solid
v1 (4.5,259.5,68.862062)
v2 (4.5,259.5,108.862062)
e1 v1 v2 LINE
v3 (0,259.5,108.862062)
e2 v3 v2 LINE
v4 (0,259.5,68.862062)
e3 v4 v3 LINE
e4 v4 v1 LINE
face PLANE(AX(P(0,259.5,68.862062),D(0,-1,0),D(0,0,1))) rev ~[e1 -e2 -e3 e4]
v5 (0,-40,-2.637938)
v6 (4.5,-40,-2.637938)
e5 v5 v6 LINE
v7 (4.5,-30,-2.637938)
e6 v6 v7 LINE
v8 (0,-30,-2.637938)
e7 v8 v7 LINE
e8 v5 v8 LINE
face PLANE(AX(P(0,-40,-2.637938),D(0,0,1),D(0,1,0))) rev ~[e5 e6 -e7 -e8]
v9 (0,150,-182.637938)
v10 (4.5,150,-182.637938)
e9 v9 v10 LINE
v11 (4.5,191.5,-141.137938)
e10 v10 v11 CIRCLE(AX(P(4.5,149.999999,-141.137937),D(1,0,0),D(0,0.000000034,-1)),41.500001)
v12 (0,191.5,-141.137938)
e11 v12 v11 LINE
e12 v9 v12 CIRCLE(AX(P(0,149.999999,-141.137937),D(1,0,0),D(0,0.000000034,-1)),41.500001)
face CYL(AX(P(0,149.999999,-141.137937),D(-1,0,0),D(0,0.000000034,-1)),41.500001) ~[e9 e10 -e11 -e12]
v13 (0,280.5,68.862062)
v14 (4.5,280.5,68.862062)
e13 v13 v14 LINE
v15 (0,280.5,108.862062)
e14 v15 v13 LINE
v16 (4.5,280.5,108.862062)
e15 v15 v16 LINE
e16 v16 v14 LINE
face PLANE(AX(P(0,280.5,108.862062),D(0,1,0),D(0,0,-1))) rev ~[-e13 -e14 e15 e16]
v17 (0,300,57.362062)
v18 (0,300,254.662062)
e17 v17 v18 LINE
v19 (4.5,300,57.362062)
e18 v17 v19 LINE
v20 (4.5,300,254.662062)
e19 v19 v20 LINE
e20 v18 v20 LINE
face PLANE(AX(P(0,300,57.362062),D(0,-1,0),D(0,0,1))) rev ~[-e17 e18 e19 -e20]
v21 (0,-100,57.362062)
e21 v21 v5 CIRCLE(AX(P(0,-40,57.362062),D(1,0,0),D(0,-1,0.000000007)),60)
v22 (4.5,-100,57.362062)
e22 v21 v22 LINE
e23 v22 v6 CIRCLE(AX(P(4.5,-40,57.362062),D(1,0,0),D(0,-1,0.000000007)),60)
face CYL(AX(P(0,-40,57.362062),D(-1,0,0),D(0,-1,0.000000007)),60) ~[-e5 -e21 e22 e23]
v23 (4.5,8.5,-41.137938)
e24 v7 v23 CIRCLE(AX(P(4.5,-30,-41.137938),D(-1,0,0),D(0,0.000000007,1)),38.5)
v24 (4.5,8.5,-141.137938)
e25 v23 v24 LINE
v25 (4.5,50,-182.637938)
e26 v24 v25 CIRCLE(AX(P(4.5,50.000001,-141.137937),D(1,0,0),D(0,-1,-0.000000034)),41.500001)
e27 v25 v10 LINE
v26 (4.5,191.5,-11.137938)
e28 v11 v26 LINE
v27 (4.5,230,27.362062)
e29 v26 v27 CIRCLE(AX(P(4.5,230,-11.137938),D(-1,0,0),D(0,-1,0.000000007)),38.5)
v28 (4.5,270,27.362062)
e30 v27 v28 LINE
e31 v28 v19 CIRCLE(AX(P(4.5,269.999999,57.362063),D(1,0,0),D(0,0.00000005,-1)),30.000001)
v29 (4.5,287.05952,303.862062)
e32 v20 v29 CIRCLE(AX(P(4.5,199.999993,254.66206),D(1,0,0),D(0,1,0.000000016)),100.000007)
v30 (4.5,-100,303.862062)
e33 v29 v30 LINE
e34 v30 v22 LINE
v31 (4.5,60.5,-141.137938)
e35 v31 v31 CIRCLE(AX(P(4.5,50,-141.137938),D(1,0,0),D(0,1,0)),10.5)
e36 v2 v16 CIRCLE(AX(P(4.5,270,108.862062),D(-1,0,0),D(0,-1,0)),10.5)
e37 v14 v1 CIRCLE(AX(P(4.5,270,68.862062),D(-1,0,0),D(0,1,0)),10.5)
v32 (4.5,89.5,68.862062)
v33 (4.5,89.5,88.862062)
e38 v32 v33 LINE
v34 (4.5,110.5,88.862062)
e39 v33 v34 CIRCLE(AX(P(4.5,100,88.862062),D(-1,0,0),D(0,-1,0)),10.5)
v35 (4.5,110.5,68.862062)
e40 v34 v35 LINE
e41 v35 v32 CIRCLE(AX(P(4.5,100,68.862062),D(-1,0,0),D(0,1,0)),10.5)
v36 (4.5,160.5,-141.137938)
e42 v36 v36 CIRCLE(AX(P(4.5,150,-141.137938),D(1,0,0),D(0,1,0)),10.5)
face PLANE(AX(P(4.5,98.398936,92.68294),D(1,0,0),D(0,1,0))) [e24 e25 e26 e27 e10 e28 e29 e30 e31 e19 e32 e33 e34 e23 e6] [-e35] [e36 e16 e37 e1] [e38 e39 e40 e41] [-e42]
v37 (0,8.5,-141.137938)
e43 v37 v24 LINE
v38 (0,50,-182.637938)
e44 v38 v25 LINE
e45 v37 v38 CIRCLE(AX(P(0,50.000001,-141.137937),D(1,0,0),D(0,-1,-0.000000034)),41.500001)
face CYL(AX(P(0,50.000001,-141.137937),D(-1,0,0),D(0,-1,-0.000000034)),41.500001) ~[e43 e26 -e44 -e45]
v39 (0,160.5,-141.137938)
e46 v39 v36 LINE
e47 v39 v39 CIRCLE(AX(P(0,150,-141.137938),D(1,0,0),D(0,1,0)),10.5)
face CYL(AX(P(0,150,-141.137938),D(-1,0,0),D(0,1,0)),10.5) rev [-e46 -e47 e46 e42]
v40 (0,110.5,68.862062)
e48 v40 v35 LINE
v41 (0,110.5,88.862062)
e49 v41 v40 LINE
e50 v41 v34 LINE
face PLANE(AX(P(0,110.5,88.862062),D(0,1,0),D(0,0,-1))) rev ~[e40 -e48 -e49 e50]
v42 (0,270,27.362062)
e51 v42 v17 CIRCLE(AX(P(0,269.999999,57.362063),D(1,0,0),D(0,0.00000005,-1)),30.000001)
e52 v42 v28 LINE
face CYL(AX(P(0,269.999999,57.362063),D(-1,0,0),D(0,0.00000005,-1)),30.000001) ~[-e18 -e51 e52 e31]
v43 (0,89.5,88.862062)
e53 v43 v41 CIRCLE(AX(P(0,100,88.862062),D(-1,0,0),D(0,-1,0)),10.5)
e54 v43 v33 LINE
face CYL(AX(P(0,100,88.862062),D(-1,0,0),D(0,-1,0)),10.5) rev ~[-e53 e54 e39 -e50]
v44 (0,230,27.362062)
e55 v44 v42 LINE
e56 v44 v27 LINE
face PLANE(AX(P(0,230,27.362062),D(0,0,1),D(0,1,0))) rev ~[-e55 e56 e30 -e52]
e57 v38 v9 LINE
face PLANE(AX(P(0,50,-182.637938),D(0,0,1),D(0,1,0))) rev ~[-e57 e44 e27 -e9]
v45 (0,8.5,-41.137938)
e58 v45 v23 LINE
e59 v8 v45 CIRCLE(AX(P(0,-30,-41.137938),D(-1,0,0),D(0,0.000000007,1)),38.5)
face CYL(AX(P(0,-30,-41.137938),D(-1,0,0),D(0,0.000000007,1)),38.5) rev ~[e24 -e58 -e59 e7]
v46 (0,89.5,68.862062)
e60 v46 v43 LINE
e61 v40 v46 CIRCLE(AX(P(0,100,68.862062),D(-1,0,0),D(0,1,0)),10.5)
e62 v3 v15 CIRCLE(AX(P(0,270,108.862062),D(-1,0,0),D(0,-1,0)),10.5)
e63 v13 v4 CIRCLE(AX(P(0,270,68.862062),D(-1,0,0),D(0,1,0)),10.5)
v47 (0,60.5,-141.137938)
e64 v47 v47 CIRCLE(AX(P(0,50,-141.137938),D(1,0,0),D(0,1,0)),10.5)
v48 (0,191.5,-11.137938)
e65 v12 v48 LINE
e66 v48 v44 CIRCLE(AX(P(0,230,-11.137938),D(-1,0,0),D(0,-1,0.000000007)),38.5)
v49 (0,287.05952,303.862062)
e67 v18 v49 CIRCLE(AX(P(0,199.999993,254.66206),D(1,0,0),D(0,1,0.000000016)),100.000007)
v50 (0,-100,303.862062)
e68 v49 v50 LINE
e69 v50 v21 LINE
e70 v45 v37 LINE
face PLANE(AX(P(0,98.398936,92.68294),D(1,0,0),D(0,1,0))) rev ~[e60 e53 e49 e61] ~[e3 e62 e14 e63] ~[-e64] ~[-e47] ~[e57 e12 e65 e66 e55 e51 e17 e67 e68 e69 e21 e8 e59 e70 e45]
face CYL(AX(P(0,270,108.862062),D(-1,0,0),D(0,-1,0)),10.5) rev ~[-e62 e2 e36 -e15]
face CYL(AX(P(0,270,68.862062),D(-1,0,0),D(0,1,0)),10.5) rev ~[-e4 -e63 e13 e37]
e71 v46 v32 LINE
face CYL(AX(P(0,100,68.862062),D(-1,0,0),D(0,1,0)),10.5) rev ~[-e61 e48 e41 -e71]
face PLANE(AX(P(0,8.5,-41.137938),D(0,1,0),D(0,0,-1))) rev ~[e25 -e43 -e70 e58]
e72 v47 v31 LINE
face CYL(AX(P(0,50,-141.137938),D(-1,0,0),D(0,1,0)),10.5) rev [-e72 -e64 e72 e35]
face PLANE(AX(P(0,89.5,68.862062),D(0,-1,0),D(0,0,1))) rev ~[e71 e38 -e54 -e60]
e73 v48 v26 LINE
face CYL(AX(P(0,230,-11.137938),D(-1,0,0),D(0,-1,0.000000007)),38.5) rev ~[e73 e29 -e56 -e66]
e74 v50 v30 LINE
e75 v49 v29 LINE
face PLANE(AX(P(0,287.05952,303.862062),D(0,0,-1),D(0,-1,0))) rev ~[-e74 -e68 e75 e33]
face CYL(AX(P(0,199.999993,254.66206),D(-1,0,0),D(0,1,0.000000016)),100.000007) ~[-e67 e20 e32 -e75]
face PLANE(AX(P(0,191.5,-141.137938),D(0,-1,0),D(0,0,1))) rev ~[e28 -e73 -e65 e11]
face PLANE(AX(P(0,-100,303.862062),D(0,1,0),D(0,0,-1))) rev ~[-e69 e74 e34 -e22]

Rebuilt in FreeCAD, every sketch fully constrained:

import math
import FreeCAD as App
import Part
import Sketcher
Q = App.Units.Quantity

doc = App.newDocument("Part")
body = doc.addObject("PartDesign::Body", "Body")

sketch1 = body.newObject("Sketcher::SketchObject", "Sketch")
sketch1.AttachmentSupport = (doc.getObject("YZ_Plane"), [""])
sketch1.MapMode = "FlatFace"
sketch1.addGeometry(Part.LineSegment(App.Vector(287, 304, 0), App.Vector(-100, 304, 0)), False)
sketch1.addGeometry(Part.LineSegment(App.Vector(-100, 304, 0), App.Vector(-100, 57, 0)), False)
sketch1.addGeometry(Part.ArcOfCircle(Part.Circle(App.Vector(-40, 57, 0), App.Vector(0, 0, 1), 60), math.radians(180), math.radians(270)), False)
sketch1.addGeometry(Part.LineSegment(App.Vector(-40, -3, 0), App.Vector(-30, -3, 0)), False)
sketch1.addGeometry(Part.ArcOfCircle(Part.Circle(App.Vector(-30, -41, 0), App.Vector(0, 0, 1), 39), math.radians(0), math.radians(90)), False)
sketch1.addGeometry(Part.LineSegment(App.Vector(8, -41, 0), App.Vector(8, -141, 0)), False)
sketch1.addGeometry(Part.ArcOfCircle(Part.Circle(App.Vector(50, -141, 0), App.Vector(0, 0, 1), 42), math.radians(-180), math.radians(-90)), False)
sketch1.addGeometry(Part.LineSegment(App.Vector(50, -183, 0), App.Vector(150, -183, 0)), False)
sketch1.addGeometry(Part.ArcOfCircle(Part.Circle(App.Vector(150, -141, 0), App.Vector(0, 0, 1), 42), math.radians(-90), math.radians(0)), False)
sketch1.addGeometry(Part.LineSegment(App.Vector(192, -141, 0), App.Vector(192, -11, 0)), False)
sketch1.addGeometry(Part.ArcOfCircle(Part.Circle(App.Vector(230, -11, 0), App.Vector(0, 0, 1), 39), math.radians(90), math.radians(180)), False)
sketch1.addGeometry(Part.LineSegment(App.Vector(230, 27, 0), App.Vector(270, 27, 0)), False)
sketch1.addGeometry(Part.ArcOfCircle(Part.Circle(App.Vector(270, 57, 0), App.Vector(0, 0, 1), 30), math.radians(-90), math.radians(0)), False)
sketch1.addGeometry(Part.LineSegment(App.Vector(300, 57, 0), App.Vector(300, 255, 0)), False)
sketch1.addGeometry(Part.ArcOfCircle(Part.Circle(App.Vector(200, 255, 0), App.Vector(0, 0, 1), 100), math.radians(0), math.radians(29)), False)
sketch1.addGeometry(Part.Circle(App.Vector(50, -141, 0), App.Vector(0, 0, 1), 10), False)
sketch1.addGeometry(Part.Circle(App.Vector(150, -141, 0), App.Vector(0, 0, 1), 10), False)
sketch1.addGeometry(Part.LineSegment(App.Vector(90, 69, 0), App.Vector(90, 89, 0)), False)
sketch1.addGeometry(Part.ArcOfCircle(Part.Circle(App.Vector(100, 89, 0), App.Vector(0, 0, 1), 10), math.radians(0), math.radians(180)), False)
sketch1.addGeometry(Part.LineSegment(App.Vector(110, 89, 0), App.Vector(110, 69, 0)), False)
sketch1.addGeometry(Part.ArcOfCircle(Part.Circle(App.Vector(100, 69, 0), App.Vector(0, 0, 1), 10), math.radians(180), math.radians(360)), False)
sketch1.addGeometry(Part.ArcOfCircle(Part.Circle(App.Vector(270, 69, 0), App.Vector(0, 0, 1), 10), math.radians(180), math.radians(360)), False)
sketch1.addGeometry(Part.LineSegment(App.Vector(260, 69, 0), App.Vector(260, 109, 0)), False)
sketch1.addGeometry(Part.ArcOfCircle(Part.Circle(App.Vector(270, 109, 0), App.Vector(0, 0, 1), 10), math.radians(0), math.radians(180)), False)
sketch1.addGeometry(Part.LineSegment(App.Vector(280, 109, 0), App.Vector(280, 69, 0)), False)
sketch1.addConstraint(Sketcher.Constraint("Coincident", 0, 2, 1, 1))
sketch1.addConstraint(Sketcher.Constraint("Tangent", 1, 2, 2, 1))
sketch1.addConstraint(Sketcher.Constraint("Tangent", 2, 2, 3, 1))
sketch1.addConstraint(Sketcher.Constraint("Tangent", 3, 2, 4, 2))
sketch1.addConstraint(Sketcher.Constraint("Tangent", 4, 1, 5, 1))
sketch1.addConstraint(Sketcher.Constraint("Tangent", 5, 2, 6, 1))
sketch1.addConstraint(Sketcher.Constraint("Tangent", 6, 2, 7, 1))
sketch1.addConstraint(Sketcher.Constraint("Tangent", 7, 2, 8, 1))
sketch1.addConstraint(Sketcher.Constraint("Tangent", 8, 2, 9, 1))
sketch1.addConstraint(Sketcher.Constraint("Tangent", 9, 2, 10, 2))
sketch1.addConstraint(Sketcher.Constraint("Tangent", 10, 1, 11, 1))
sketch1.addConstraint(Sketcher.Constraint("Tangent", 11, 2, 12, 1))
sketch1.addConstraint(Sketcher.Constraint("Tangent", 12, 2, 13, 1))
sketch1.addConstraint(Sketcher.Constraint("Tangent", 13, 2, 14, 1))
sketch1.addConstraint(Sketcher.Constraint("Coincident", 14, 2, 0, 1))
sketch1.addConstraint(Sketcher.Constraint("Tangent", 17, 2, 18, 2))
sketch1.addConstraint(Sketcher.Constraint("Tangent", 18, 1, 19, 1))
sketch1.addConstraint(Sketcher.Constraint("Tangent", 19, 2, 20, 2))
sketch1.addConstraint(Sketcher.Constraint("Tangent", 20, 1, 17, 1))
sketch1.addConstraint(Sketcher.Constraint("Tangent", 21, 1, 22, 1))
sketch1.addConstraint(Sketcher.Constraint("Tangent", 22, 2, 23, 2))
sketch1.addConstraint(Sketcher.Constraint("Tangent", 23, 1, 24, 1))
sketch1.addConstraint(Sketcher.Constraint("Tangent", 24, 2, 21, 2))
sketch1.addConstraint(Sketcher.Constraint("Horizontal", 0))
sketch1.addConstraint(Sketcher.Constraint("Vertical", 1))
sketch1.addConstraint(Sketcher.Constraint("Horizontal", 3))
sketch1.addConstraint(Sketcher.Constraint("Vertical", 5))
sketch1.addConstraint(Sketcher.Constraint("Horizontal", 7))
sketch1.addConstraint(Sketcher.Constraint("Vertical", 9))
sketch1.addConstraint(Sketcher.Constraint("Horizontal", 11))
sketch1.addConstraint(Sketcher.Constraint("Vertical", 13))
sketch1.addConstraint(Sketcher.Constraint("Vertical", 17))
sketch1.addConstraint(Sketcher.Constraint("Vertical", 19))
sketch1.addConstraint(Sketcher.Constraint("Vertical", 22))
sketch1.addConstraint(Sketcher.Constraint("Vertical", 24))
sketch1.addConstraint(Sketcher.Constraint("Coincident", 15, 3, 6, 3))
sketch1.addConstraint(Sketcher.Constraint("Coincident", 16, 3, 8, 3))
sketch1.addConstraint(Sketcher.Constraint("Equal", 6, 8))
sketch1.addConstraint(Sketcher.Constraint("Equal", 4, 10))
sketch1.addConstraint(Sketcher.Constraint("Equal", 15, 16))
sketch1.addConstraint(Sketcher.Constraint("Equal", 16, 18))
sketch1.addConstraint(Sketcher.Constraint("Equal", 20, 21))
sketch1.addConstraint(Sketcher.Constraint("Horizontal", 2, 3, 12, 3))
sketch1.addConstraint(Sketcher.Constraint("Horizontal", 20, 3, 21, 3))
sketch1.addConstraint(Sketcher.Constraint("Vertical", 12, 3, 21, 3))
sketch1.addConstraint(Sketcher.Constraint("Equal", 7, 5))
sketch1.addConstraint(Sketcher.Constraint("Equal", 11, 22))
sketch1.addConstraint(Sketcher.Constraint("Diameter", 15, Q("21 mm")))
sketch1.addConstraint(Sketcher.Constraint("Radius", 2, Q("60 mm")))
sketch1.addConstraint(Sketcher.Constraint("Radius", 12, Q("30.000001 mm")))
sketch1.addConstraint(Sketcher.Constraint("Radius", 4, Q("38.5 mm")))
sketch1.addConstraint(Sketcher.Constraint("Radius", 6, Q("41.500001 mm")))
sketch1.addConstraint(Sketcher.Constraint("DistanceX", 3, 1, 3, 2, Q("10 mm")))
sketch1.addConstraint(Sketcher.Constraint("DistanceX", 7, 1, 7, 2, Q("100 mm")))
sketch1.addConstraint(Sketcher.Constraint("DistanceX", 11, 1, 11, 2, Q("40 mm")))
sketch1.addConstraint(Sketcher.Constraint("DistanceY", 17, 1, 17, 2, Q("20 mm")))
sketch1.addConstraint(Sketcher.Constraint("DistanceY", 1, 2, 1, 1, Q("246.5 mm")))
sketch1.addConstraint(Sketcher.Constraint("DistanceY", 13, 1, 13, 2, Q("197.3 mm")))
sketch1.addConstraint(Sketcher.Constraint("DistanceX", 2, 3, -1, 1, Q("40 mm")))
sketch1.addConstraint(Sketcher.Constraint("DistanceX", -1, 1, 18, 3, Q("100 mm")))
sketch1.addConstraint(Sketcher.Constraint("DistanceY", 10, 3, 18, 3, Q("100 mm")))
sketch1.addConstraint(Sketcher.Constraint("Radius", 14, Q("100.000007 mm")))
sketch1.addConstraint(Sketcher.Constraint("DistanceY", -1, 1, 2, 3, Q("57.362062 mm")))
pad1 = body.newObject("PartDesign::Pad", "Pad")
pad1.Profile = sketch1
pad1.Length = 4.5

doc.recompute()
